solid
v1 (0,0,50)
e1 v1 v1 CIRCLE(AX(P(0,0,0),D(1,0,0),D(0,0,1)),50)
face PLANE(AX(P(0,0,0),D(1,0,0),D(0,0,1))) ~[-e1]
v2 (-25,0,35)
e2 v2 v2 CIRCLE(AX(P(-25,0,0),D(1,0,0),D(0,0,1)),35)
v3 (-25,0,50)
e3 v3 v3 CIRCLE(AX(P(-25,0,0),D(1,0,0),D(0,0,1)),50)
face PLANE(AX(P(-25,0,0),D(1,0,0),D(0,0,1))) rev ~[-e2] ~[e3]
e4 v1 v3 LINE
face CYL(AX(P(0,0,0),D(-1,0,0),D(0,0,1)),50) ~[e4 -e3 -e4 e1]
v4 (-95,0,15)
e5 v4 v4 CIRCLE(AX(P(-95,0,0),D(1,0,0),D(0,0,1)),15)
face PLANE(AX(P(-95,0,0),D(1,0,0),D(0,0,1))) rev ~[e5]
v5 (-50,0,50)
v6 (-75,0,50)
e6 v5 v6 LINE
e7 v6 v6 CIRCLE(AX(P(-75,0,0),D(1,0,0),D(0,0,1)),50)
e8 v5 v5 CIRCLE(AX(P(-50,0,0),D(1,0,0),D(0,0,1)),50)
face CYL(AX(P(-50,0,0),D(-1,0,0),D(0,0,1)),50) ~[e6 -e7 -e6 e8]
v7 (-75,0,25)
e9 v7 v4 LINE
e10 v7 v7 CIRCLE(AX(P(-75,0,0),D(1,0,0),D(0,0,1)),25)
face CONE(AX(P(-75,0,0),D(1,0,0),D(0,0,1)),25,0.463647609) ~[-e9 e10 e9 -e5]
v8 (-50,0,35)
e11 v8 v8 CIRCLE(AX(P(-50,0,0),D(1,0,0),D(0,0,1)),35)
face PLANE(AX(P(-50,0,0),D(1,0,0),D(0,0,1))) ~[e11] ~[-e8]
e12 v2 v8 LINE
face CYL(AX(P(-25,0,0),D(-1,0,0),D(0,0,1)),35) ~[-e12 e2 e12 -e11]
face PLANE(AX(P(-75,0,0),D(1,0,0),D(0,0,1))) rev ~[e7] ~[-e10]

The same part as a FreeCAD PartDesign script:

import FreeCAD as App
import Part
import Sketcher

doc = App.newDocument("Part")
body = doc.addObject("PartDesign::Body", "Body")

# Sketch on XZ plane
sketch1 = body.newObject("Sketcher::SketchObject", "Sketch")
sketch1.AttachmentSupport = (doc.getObject("XZ_Plane"), [""])
sketch1.MapMode = "FlatFace"
sketch1.addGeometry([
    Part.LineSegment(App.Vector(0, 50, 0), App.Vector(0, 0, 0)),  # 0
    Part.LineSegment(App.Vector(0, 0, 0), App.Vector(-95, 0, 0)),  # 1
    Part.LineSegment(App.Vector(-95, 0, 0), App.Vector(-95, 15, 0)),  # 2
    Part.LineSegment(App.Vector(-95, 15, 0), App.Vector(-75, 25, 0)),  # 3
    Part.LineSegment(App.Vector(-75, 25, 0), App.Vector(-75, 50, 0)),  # 4
    Part.LineSegment(App.Vector(-75, 50, 0), App.Vector(-50, 50, 0)),  # 5
    Part.LineSegment(App.Vector(-50, 50, 0), App.Vector(-50, 35, 0)),  # 6
    Part.LineSegment(App.Vector(-50, 35, 0), App.Vector(-25, 35, 0)),  # 7
    Part.LineSegment(App.Vector(-25, 35, 0), App.Vector(-25, 50, 0)),  # 8
    Part.LineSegment(App.Vector(-25, 50, 0), App.Vector(0, 50, 0)),  # 9
], False)
sketch1.addConstraint([
    Sketcher.Constraint("Coincident", 0, 2, 1, 1),
    Sketcher.Constraint("Coincident", 1, 2, 2, 1),
    Sketcher.Constraint("Coincident", 2, 2, 3, 1),
    Sketcher.Constraint("Coincident", 3, 2, 4, 1),
    Sketcher.Constraint("Coincident", 4, 2, 5, 1),
    Sketcher.Constraint("Coincident", 5, 2, 6, 1),
    Sketcher.Constraint("Coincident", 6, 2, 7, 1),
    Sketcher.Constraint("Coincident", 7, 2, 8, 1),
    Sketcher.Constraint("Coincident", 8, 2, 9, 1),
    Sketcher.Constraint("Coincident", 9, 2, 0, 1),
    Sketcher.Constraint("Vertical", 0),
    Sketcher.Constraint("Horizontal", 1),
    Sketcher.Constraint("Vertical", 2),
    Sketcher.Constraint("Vertical", 4),
    Sketcher.Constraint("Horizontal", 5),
    Sketcher.Constraint("Vertical", 6),
    Sketcher.Constraint("Horizontal", 7),
    Sketcher.Constraint("Vertical", 8),
    Sketcher.Constraint("Horizontal", 9),
    Sketcher.Constraint("Coincident", 0, 2, -1, 1),
    Sketcher.Constraint("Horizontal", 5, 2, 8, 2),
    Sketcher.Constraint("Equal", 5, 7),
    Sketcher.Constraint("Equal", 7, 9),
    Sketcher.Constraint("Equal", 9, 4),
    Sketcher.Constraint("Equal", 2, 6),
    Sketcher.Constraint("DistanceX", 1, 2, 1, 1, 95.0),
    Sketcher.Constraint("DistanceX", 5, 1, 5, 2, 25.0),
    Sketcher.Constraint("DistanceY", 0, 2, 0, 1, 50.0),
    Sketcher.Constraint("DistanceY", 2, 1, 2, 2, 15.0),
])
revolution = body.newObject("PartDesign::Revolution", "Revolution")
revolution.Profile = sketch1
revolution.ReferenceAxis = (sketch1, ["H_Axis"])
revolution.Angle = 360

doc.recompute()
